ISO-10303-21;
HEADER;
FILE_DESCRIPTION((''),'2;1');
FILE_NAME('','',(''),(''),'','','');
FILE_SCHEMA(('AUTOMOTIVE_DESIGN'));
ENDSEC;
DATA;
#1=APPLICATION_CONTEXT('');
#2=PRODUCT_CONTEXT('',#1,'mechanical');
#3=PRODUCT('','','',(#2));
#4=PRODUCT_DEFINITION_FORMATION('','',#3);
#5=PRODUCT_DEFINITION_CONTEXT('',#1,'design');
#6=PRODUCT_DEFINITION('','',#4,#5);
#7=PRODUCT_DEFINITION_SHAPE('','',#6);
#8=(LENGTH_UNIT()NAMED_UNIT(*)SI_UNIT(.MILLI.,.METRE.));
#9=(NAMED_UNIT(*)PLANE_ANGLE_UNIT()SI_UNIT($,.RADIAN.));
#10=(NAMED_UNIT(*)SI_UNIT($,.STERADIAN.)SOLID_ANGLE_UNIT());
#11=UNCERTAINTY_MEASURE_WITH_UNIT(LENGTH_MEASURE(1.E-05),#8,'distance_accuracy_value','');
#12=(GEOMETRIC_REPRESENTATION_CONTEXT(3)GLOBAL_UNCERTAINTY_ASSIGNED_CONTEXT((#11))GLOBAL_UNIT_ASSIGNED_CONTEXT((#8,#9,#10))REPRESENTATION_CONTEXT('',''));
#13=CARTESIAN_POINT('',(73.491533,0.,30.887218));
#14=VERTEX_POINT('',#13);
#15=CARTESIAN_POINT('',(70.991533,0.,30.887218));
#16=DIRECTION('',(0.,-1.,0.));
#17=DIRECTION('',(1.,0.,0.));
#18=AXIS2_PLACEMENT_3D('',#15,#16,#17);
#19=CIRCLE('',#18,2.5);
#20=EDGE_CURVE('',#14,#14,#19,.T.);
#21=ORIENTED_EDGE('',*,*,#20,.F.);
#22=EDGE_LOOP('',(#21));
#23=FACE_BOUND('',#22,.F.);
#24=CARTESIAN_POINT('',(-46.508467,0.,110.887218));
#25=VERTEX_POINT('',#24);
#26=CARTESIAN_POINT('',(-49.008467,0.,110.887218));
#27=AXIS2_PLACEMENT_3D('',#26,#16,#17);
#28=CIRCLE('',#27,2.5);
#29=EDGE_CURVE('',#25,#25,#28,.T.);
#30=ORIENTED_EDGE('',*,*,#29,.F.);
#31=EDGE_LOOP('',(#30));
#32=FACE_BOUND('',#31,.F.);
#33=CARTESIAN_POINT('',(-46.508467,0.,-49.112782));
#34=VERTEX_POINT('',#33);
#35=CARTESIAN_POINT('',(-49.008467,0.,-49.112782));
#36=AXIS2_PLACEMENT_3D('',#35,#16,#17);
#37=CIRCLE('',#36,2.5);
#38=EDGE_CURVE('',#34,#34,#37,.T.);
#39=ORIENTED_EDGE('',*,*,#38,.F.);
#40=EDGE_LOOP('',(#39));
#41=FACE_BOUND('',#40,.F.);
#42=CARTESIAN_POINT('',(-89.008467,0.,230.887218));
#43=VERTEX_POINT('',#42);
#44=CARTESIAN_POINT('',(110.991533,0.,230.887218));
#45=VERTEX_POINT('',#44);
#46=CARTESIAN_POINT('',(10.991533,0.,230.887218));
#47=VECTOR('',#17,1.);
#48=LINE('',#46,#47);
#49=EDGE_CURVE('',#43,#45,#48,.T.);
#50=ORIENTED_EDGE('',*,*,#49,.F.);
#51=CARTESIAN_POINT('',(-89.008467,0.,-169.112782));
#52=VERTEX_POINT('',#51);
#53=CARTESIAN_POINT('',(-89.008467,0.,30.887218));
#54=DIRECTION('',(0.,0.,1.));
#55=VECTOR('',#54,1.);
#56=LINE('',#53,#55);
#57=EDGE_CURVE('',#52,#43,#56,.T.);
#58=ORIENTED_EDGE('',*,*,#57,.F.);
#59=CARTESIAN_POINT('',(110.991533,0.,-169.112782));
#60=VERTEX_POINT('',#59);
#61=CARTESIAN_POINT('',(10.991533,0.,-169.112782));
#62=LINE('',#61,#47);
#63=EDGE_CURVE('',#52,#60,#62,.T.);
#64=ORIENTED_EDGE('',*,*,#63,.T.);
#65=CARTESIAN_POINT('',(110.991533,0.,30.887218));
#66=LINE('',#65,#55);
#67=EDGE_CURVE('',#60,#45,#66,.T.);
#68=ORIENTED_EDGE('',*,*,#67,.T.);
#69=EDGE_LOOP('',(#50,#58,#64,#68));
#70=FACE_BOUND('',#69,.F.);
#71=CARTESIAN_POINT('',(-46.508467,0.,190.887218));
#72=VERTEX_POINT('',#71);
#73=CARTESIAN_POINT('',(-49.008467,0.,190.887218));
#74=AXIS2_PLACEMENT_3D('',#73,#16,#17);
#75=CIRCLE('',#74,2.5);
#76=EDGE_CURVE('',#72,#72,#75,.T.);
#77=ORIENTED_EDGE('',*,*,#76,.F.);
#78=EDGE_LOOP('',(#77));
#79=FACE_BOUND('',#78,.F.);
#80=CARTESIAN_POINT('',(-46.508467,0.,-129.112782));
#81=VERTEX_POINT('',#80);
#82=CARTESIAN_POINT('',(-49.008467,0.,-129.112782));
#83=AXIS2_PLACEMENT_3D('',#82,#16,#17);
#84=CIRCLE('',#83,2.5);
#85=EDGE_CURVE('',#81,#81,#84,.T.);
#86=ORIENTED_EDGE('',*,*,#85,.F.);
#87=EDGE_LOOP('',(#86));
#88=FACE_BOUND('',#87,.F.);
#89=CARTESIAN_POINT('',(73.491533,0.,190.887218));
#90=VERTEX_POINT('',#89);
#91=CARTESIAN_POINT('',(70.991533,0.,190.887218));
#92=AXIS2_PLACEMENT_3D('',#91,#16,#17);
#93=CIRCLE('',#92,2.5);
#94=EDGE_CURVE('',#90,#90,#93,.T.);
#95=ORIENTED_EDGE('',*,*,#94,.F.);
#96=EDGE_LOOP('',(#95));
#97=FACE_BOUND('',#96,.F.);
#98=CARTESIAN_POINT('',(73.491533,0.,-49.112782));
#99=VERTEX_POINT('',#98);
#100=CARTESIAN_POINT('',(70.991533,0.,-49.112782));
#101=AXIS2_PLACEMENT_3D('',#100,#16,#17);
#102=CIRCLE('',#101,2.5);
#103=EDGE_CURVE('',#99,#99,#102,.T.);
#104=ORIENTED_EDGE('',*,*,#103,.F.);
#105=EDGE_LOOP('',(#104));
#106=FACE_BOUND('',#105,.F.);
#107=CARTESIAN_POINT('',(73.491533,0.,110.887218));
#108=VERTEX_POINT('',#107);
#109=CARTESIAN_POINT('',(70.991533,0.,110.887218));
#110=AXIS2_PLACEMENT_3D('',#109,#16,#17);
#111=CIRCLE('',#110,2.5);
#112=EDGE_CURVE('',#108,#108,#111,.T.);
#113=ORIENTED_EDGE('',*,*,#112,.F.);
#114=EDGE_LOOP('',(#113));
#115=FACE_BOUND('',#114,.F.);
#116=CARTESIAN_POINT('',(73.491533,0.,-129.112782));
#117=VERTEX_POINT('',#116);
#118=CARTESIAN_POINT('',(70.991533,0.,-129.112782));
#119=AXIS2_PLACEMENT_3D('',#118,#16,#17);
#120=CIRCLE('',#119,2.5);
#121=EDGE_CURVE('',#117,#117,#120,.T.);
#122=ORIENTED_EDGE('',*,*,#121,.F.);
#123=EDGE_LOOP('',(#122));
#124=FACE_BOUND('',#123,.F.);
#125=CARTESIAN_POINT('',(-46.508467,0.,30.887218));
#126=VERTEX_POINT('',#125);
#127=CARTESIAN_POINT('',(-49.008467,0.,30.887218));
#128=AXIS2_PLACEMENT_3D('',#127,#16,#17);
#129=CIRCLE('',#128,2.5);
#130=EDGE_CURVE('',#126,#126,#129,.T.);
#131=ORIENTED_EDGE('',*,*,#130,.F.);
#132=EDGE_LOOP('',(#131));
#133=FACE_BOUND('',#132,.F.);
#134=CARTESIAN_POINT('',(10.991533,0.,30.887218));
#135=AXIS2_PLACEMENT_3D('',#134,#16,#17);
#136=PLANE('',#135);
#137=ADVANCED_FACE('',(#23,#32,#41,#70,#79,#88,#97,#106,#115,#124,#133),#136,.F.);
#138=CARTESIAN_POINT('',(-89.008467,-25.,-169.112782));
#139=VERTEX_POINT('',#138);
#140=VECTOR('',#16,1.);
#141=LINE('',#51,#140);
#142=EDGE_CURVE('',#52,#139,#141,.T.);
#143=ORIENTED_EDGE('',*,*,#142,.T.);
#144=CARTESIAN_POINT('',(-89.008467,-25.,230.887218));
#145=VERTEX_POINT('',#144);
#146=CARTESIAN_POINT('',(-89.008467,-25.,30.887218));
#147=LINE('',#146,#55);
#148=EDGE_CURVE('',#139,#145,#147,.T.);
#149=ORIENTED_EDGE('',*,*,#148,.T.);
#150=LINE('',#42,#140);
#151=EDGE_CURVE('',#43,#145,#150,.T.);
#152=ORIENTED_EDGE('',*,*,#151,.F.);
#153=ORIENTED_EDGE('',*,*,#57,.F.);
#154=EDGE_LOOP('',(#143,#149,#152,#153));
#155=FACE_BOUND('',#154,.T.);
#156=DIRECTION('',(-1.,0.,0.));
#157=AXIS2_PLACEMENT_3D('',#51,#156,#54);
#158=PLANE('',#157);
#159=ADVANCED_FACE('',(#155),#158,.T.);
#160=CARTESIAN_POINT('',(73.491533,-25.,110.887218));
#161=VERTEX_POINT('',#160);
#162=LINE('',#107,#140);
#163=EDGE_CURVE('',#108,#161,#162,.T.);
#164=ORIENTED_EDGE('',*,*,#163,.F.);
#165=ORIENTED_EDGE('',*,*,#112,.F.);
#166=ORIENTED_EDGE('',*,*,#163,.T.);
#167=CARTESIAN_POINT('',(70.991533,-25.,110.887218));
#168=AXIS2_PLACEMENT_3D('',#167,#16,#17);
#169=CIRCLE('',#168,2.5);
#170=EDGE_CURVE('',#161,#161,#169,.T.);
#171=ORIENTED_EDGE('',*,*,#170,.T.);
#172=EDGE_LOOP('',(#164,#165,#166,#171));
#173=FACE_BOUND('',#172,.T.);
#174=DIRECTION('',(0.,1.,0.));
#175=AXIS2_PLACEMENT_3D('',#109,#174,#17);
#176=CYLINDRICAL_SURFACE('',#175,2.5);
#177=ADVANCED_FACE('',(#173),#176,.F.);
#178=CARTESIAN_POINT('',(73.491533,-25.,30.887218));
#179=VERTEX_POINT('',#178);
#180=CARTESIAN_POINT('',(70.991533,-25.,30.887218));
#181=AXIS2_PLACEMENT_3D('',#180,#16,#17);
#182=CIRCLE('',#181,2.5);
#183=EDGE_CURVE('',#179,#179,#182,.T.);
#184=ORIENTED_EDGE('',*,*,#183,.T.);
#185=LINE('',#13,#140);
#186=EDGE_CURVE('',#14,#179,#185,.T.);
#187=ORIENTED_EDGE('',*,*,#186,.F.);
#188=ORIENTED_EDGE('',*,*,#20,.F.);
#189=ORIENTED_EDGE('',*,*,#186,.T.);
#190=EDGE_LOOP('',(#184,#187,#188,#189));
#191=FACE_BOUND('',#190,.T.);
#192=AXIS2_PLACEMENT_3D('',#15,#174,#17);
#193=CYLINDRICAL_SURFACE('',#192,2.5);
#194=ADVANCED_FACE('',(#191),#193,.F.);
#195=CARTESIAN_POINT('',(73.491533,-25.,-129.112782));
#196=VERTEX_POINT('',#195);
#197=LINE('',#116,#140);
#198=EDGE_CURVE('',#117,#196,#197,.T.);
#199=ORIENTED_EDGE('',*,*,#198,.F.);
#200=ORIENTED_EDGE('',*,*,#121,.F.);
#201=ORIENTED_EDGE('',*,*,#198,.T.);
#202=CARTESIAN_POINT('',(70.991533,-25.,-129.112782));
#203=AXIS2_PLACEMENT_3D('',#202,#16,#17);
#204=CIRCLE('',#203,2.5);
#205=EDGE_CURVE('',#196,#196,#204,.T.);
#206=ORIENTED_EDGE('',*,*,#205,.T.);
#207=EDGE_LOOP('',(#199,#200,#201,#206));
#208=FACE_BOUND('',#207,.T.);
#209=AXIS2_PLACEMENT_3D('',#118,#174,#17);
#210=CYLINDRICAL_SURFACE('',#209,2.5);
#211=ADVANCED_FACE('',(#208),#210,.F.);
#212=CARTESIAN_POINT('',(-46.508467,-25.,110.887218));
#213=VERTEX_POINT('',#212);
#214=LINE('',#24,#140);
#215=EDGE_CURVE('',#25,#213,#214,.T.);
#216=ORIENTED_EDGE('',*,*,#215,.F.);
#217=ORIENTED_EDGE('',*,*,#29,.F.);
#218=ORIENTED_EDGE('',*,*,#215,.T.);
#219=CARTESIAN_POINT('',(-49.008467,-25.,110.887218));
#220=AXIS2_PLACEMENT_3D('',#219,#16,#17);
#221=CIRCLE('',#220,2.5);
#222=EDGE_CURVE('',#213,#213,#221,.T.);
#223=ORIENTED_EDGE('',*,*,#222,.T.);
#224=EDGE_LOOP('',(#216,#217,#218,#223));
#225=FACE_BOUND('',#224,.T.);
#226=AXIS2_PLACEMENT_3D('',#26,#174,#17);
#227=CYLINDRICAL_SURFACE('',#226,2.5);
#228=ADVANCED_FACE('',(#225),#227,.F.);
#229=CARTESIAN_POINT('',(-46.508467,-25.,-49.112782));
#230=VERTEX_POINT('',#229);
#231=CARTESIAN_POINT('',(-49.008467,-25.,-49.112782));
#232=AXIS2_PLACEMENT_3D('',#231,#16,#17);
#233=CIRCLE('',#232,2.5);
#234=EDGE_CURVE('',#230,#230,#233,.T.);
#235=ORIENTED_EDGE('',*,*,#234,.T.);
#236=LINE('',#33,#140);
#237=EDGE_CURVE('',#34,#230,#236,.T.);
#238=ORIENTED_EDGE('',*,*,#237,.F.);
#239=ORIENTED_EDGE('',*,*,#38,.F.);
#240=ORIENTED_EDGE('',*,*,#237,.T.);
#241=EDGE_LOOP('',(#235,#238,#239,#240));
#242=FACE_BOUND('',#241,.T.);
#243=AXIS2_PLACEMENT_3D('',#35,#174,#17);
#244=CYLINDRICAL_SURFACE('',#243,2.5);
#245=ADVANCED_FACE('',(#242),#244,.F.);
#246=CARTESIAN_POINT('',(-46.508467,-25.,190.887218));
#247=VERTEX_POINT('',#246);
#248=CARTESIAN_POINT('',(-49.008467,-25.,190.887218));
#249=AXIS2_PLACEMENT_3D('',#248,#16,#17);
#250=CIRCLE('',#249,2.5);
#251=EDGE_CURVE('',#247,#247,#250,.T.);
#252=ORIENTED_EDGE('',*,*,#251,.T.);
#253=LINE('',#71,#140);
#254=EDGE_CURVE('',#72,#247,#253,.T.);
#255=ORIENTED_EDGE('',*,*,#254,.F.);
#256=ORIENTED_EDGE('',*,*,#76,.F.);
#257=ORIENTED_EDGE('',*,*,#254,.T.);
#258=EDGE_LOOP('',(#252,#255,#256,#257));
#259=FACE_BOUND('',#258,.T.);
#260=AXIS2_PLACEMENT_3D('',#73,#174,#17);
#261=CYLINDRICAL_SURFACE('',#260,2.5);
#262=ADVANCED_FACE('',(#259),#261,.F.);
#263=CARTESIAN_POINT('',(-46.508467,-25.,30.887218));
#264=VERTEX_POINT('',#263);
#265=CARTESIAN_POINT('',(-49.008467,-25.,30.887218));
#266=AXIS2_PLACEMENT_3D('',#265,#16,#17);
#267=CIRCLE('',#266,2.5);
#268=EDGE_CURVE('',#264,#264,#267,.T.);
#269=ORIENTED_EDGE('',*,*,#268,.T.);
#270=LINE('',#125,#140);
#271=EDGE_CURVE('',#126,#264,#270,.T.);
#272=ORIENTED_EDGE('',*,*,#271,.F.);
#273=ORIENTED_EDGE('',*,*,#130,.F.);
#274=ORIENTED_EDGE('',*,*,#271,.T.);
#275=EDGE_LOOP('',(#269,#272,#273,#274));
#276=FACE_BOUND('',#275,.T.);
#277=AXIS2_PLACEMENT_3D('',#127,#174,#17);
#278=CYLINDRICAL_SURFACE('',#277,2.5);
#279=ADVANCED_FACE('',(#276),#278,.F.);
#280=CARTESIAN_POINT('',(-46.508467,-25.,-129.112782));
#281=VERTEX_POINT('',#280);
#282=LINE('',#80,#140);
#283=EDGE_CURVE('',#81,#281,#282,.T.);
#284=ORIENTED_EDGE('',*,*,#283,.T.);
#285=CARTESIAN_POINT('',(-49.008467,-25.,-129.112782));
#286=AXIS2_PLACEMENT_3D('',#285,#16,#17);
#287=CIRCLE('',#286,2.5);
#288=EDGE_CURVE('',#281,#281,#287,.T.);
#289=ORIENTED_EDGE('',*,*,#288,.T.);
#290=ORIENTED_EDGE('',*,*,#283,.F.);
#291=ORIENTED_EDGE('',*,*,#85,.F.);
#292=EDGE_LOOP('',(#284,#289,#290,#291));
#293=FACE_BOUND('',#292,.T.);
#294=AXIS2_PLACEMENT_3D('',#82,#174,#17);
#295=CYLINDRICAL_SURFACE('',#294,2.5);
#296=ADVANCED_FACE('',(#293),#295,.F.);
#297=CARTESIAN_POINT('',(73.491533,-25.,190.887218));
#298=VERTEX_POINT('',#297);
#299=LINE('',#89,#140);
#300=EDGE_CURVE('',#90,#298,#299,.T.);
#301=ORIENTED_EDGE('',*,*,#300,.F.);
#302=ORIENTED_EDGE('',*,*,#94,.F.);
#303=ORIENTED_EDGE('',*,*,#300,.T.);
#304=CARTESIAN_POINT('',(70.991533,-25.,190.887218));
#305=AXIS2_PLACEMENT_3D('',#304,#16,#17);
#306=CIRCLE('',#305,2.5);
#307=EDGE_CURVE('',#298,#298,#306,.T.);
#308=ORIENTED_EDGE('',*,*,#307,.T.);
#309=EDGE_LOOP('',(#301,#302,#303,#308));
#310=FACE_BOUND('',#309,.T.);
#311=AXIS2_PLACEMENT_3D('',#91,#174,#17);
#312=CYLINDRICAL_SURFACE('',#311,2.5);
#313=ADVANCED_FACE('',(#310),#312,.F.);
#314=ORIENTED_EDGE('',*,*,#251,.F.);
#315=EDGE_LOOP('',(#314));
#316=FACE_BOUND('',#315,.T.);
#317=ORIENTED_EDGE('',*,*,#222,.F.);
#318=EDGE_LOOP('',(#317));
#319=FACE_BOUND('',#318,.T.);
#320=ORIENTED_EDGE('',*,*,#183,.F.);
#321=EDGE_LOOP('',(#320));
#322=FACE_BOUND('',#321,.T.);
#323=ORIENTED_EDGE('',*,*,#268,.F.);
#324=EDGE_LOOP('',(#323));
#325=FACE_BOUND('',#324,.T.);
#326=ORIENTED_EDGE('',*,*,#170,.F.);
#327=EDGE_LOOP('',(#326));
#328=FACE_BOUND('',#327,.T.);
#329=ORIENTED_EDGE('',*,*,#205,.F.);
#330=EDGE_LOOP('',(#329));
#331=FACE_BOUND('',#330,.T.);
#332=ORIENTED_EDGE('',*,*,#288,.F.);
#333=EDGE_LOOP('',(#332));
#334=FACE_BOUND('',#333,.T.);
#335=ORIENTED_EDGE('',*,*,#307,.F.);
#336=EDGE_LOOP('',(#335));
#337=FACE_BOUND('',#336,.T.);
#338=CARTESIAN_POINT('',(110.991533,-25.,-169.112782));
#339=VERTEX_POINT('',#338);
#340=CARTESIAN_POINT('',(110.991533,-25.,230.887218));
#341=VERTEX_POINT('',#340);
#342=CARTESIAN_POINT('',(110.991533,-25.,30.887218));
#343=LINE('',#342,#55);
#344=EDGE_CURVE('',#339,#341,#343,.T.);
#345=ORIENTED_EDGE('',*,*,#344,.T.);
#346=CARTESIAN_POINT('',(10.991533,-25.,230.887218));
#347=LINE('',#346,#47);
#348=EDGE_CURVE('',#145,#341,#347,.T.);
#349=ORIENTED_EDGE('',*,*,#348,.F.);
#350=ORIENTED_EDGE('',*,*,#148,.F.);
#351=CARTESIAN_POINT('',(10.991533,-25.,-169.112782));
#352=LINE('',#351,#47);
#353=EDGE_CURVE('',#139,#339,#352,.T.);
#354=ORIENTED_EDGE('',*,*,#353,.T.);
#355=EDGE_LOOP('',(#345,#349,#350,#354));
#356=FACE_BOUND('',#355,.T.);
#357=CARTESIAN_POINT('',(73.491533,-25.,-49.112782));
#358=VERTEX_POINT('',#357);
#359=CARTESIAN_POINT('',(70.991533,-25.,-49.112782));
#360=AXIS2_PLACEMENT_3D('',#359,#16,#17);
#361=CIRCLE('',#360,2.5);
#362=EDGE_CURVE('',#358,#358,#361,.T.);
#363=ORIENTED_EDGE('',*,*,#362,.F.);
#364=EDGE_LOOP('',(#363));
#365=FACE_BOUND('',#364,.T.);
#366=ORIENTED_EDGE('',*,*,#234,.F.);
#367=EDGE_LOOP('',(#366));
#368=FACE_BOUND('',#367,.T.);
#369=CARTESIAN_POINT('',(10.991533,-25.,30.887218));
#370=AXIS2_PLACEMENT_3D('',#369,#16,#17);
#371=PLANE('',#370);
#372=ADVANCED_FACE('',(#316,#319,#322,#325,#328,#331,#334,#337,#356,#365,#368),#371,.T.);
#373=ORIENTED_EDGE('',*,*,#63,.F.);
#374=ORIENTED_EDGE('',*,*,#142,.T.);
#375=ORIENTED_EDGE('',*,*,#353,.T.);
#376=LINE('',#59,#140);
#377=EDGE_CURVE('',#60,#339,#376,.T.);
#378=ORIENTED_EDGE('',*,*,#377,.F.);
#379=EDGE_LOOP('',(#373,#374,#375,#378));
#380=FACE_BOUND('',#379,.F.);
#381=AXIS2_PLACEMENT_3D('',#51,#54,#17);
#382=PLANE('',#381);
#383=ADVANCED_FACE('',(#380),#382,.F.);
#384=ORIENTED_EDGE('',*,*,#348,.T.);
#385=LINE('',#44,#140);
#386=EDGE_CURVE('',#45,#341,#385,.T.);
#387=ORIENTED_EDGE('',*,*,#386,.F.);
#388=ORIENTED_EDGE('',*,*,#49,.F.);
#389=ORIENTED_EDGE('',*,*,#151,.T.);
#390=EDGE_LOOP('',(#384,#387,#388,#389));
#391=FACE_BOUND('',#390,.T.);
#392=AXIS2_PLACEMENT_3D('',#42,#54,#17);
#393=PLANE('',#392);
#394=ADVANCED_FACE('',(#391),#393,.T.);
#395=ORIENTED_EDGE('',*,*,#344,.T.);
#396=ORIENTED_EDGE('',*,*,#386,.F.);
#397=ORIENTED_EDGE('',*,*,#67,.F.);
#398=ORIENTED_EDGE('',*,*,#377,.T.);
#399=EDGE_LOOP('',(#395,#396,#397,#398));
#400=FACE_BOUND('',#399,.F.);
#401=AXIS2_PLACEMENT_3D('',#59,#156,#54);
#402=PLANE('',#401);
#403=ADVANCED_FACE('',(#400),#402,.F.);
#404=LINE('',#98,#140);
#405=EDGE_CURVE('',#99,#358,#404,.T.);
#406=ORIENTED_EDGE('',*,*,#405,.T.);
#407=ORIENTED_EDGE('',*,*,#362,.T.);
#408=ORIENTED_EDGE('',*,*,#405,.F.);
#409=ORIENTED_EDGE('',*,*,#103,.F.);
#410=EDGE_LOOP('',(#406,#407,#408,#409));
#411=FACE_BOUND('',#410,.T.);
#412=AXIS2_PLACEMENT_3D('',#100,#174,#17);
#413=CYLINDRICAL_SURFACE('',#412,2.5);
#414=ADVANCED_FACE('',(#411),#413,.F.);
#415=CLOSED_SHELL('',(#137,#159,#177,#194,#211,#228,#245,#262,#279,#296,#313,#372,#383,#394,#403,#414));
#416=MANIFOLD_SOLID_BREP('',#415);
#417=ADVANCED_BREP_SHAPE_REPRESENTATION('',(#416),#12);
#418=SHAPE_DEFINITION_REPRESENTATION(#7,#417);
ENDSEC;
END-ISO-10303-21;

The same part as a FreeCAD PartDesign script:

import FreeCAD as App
import Part
import Sketcher


def add_polygon(sketch, points):
    """Adds a closed chain of lines whose ends are joined by coincident constraints."""
    first, n = sketch.GeometryCount, len(points)
    for a, b in zip(points, points[1:] + points[:1]):
        sketch.addGeometry(Part.LineSegment(App.Vector(*a, 0), App.Vector(*b, 0)), False)
    for i in range(n):
        sketch.addConstraint(Sketcher.Constraint("Coincident", first + i, 2, first + (i + 1) % n, 1))

doc = App.newDocument("Part")
body = doc.addObject("PartDesign::Body", "Body")

# Sketch on XZ plane
sketch1 = body.newObject("Sketcher::SketchObject", "Sketch")
sketch1.AttachmentSupport = (doc.getObject("XZ_Plane"), [""])
sketch1.MapMode = "FlatFace"
add_polygon(sketch1, [(-89.008467, 230.887218), (-89.008467, -169.112782), (110.991533, -169.112782), (110.991533, 230.887218)])  # lines 0-3
sketch1.addGeometry(Part.Circle(App.Vector(-49.008467, -129.112782, 0), App.Vector(0, 0, 1), 2.5), False)  # 4
sketch1.addGeometry(Part.Circle(App.Vector(-49.008467, -49.112782, 0), App.Vector(0, 0, 1), 2.5), False)  # 5
sketch1.addGeometry(Part.Circle(App.Vector(70.991533, -129.112782, 0), App.Vector(0, 0, 1), 2.5), False)  # 6
sketch1.addGeometry(Part.Circle(App.Vector(70.991533, -49.112782, 0), App.Vector(0, 0, 1), 2.5), False)  # 7
sketch1.addGeometry(Part.Circle(App.Vector(-49.008467, 30.887218, 0), App.Vector(0, 0, 1), 2.5), False)  # 8
sketch1.addGeometry(Part.Circle(App.Vector(-49.008467, 110.887218, 0), App.Vector(0, 0, 1), 2.5), False)  # 9
sketch1.addGeometry(Part.Circle(App.Vector(-49.008467, 190.887218, 0), App.Vector(0, 0, 1), 2.5), False)  # 10
sketch1.addGeometry(Part.Circle(App.Vector(70.991533, 30.887218, 0), App.Vector(0, 0, 1), 2.5), False)  # 11
sketch1.addGeometry(Part.Circle(App.Vector(70.991533, 110.887218, 0), App.Vector(0, 0, 1), 2.5), False)  # 12
sketch1.addGeometry(Part.Circle(App.Vector(70.991533, 190.887218, 0), App.Vector(0, 0, 1), 2.5), False)  # 13
sketch1.addConstraint([
    Sketcher.Constraint("Vertical", 0),
    Sketcher.Constraint("Horizontal", 1),
    Sketcher.Constraint("Vertical", 2),
    Sketcher.Constraint("Horizontal", 3),
    Sketcher.Constraint("Equal", 4, 5),
    Sketcher.Constraint("Equal", 5, 6),
    Sketcher.Constraint("Equal", 6, 7),
    Sketcher.Constraint("Equal", 7, 8),
    Sketcher.Constraint("Equal", 8, 9),
    Sketcher.Constraint("Equal", 9, 10),
    Sketcher.Constraint("Equal", 10, 11),
    Sketcher.Constraint("Equal", 11, 12),
    Sketcher.Constraint("Equal", 12, 13),
    Sketcher.Constraint("Horizontal", 4, 3, 6, 3),
    Sketcher.Constraint("Horizontal", 5, 3, 7, 3),
    Sketcher.Constraint("Horizontal", 8, 3, 11, 3),
    Sketcher.Constraint("Horizontal", 9, 3, 12, 3),
    Sketcher.Constraint("Horizontal", 10, 3, 13, 3),
    Sketcher.Constraint("Vertical", 4, 3, 5, 3),
    Sketcher.Constraint("Vertical", 6, 3, 7, 3),
    Sketcher.Constraint("Vertical", 5, 3, 8, 3),
    Sketcher.Constraint("Vertical", 8, 3, 9, 3),
    Sketcher.Constraint("Vertical", 9, 3, 10, 3),
    Sketcher.Constraint("Vertical", 7, 3, 11, 3),
    Sketcher.Constraint("Vertical", 11, 3, 12, 3),
    Sketcher.Constraint("Vertical", 12, 3, 13, 3),
    Sketcher.Constraint("Diameter", 4, 5.0),
    Sketcher.Constraint("DistanceX", 1, 1, 1, 2, 200.0),
    Sketcher.Constraint("DistanceY", 0, 2, 0, 1, 400.0),
    Sketcher.Constraint("DistanceY", 4, 3, 5, 3, 80.0),
    Sketcher.Constraint("DistanceX", 4, 3, 6, 3, 120.0),
    Sketcher.Constraint("DistanceY", 5, 3, 8, 3, 80.0),
    Sketcher.Constraint("DistanceY", 8, 3, 9, 3, 80.0),
    Sketcher.Constraint("DistanceY", 9, 3, 10, 3, 80.0),
    Sketcher.Constraint("DistanceX", 0, 2, 4, 3, 40.0),
    Sketcher.Constraint("DistanceY", 0, 2, 4, 3, 40.0),
    Sketcher.Constraint("DistanceY", -1, 1, 8, 3, 30.887218),
    Sketcher.Constraint("DistanceX", 4, 3, -1, 1, 49.008467),
])
pad1 = body.newObject("PartDesign::Pad", "Pad")
pad1.Profile = sketch1
pad1.Length = 25

doc.recompute()
